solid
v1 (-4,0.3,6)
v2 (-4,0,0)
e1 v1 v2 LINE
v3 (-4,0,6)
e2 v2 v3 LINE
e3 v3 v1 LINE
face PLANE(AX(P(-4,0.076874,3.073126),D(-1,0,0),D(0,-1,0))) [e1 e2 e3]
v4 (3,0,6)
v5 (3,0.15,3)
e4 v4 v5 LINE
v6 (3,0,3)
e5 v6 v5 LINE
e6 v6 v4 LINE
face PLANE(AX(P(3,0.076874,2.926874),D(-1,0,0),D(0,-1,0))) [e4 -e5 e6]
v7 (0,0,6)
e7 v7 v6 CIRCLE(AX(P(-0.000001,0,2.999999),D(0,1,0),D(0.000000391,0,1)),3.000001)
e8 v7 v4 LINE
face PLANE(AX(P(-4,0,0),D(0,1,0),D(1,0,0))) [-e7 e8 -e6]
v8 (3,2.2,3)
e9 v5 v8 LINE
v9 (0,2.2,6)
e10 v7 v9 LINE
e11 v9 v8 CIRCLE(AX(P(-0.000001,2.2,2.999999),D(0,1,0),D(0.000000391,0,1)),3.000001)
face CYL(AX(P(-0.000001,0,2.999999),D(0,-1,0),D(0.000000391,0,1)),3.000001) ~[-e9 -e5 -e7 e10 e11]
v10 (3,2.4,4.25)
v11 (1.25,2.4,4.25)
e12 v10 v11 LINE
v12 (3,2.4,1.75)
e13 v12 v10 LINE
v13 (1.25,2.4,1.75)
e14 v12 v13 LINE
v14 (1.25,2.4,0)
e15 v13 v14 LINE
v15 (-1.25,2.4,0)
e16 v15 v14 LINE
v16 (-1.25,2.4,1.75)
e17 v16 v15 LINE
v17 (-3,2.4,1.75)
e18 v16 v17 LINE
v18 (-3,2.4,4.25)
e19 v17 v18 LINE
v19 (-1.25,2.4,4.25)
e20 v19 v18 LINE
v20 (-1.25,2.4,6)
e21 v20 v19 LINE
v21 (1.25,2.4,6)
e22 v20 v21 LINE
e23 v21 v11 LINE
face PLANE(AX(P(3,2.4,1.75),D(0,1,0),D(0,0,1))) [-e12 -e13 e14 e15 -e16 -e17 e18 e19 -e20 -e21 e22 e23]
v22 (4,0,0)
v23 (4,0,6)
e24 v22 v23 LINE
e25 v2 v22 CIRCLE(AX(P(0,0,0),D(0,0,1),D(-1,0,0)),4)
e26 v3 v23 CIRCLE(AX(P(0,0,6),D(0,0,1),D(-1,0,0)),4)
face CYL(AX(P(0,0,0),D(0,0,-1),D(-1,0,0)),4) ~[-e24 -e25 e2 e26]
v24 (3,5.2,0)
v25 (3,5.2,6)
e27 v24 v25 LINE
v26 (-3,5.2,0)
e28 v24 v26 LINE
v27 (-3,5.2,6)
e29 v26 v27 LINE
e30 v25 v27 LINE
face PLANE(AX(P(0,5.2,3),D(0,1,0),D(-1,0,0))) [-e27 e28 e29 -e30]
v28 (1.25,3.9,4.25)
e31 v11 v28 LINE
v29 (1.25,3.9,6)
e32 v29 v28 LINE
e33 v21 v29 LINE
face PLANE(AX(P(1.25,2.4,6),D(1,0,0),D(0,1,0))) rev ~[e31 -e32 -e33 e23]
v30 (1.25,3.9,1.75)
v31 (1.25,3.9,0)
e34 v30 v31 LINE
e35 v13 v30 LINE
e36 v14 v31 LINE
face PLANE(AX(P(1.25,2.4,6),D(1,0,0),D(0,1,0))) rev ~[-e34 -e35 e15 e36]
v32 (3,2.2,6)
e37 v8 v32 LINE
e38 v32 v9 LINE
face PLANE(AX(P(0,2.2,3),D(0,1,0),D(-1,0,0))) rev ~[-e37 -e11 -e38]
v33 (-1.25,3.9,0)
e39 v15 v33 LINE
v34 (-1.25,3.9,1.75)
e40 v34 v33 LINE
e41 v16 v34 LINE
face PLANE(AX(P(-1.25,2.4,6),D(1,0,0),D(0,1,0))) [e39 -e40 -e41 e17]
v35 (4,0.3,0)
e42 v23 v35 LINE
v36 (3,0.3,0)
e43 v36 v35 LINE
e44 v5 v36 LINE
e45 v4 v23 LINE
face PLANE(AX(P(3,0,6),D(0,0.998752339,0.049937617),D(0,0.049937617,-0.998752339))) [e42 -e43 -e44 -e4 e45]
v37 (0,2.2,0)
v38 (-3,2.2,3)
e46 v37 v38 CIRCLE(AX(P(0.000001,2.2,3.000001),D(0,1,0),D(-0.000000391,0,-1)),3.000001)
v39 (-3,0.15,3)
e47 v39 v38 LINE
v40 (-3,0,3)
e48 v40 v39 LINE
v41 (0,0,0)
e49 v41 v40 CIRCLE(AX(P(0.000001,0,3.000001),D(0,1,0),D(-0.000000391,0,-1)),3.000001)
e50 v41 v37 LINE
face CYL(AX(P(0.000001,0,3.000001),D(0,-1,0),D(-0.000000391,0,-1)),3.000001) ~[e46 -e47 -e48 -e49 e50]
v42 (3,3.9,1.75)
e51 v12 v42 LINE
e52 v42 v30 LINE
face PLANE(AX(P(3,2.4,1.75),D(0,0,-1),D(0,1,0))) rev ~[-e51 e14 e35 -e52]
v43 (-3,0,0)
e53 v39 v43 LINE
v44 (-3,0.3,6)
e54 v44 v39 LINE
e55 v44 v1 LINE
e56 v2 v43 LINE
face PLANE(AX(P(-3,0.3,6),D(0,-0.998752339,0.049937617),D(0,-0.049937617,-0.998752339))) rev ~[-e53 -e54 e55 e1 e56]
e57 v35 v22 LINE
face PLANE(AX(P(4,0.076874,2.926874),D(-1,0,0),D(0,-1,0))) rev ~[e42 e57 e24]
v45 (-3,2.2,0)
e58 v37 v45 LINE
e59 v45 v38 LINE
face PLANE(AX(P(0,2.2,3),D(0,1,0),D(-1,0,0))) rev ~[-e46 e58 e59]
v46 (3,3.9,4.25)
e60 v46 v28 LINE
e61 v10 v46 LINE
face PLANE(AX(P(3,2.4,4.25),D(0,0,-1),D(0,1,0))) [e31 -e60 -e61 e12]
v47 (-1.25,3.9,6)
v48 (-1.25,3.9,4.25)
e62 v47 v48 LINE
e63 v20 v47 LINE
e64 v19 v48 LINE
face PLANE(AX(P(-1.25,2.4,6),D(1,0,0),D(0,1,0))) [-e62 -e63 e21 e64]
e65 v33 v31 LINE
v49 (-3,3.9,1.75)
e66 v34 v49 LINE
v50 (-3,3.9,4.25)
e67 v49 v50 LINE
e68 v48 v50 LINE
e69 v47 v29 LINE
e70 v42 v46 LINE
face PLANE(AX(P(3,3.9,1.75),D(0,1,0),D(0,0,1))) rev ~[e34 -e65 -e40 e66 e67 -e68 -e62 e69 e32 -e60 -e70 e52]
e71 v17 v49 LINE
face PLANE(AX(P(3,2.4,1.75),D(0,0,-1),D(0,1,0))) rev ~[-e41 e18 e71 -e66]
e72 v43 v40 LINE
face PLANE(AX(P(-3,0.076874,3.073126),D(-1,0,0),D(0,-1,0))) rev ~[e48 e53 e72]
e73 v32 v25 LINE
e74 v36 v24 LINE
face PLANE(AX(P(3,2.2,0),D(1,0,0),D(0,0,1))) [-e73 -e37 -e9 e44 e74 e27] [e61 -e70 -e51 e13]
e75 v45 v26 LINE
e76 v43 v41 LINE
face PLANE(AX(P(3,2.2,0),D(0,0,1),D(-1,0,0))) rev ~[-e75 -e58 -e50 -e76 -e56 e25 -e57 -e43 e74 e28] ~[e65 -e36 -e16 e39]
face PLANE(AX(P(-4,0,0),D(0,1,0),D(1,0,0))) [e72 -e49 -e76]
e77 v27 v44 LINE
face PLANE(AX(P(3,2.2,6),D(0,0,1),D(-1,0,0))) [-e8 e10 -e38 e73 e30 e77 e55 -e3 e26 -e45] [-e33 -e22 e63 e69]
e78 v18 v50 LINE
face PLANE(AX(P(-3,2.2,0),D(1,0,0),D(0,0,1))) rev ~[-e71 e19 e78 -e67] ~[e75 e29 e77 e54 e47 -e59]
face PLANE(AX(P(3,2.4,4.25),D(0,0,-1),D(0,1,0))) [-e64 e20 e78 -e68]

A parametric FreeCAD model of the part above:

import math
import FreeCAD as App
import Part
import Sketcher

V = App.Vector
Q = App.Units.Quantity


def add_polygon(sketch, points):
    """Adds a closed chain of lines whose ends are joined by coincident constraints."""
    first, n = sketch.GeometryCount, len(points)
    for a, b in zip(points, points[1:] + points[:1]):
        sketch.addGeometry(Part.LineSegment(App.Vector(*a, 0), App.Vector(*b, 0)), False)
    for i in range(n):
        sketch.addConstraint(Sketcher.Constraint("Coincident", first + i, 2, first + (i + 1) % n, 1))

doc = App.newDocument("Part")
params = doc.addObject("Spreadsheet::Sheet", "Params")
for row, (alias, value) in enumerate([
    ("sketch1_radius", "4 mm"),
    ("pad1_length", "6 mm"),
    ("sketch2_radius", "3.000001 mm"),
    ("pad2_length", "2.2 mm"),
    ("sketch3_height", "6 mm"),
    ("sketch3_width", "0.3 mm"),
    ("pad3_length", "1 mm"),
    ("sketch4_height", "6 mm"),
    ("sketch4_width", "0.3 mm"),
    ("pad4_length", "1 mm"),
    ("sketch5_width", "6 mm"),
    ("pad5_length", "3 mm"),
    ("sketch6_width", "2.5 mm"),
    ("sketch6_height", "1.5 mm"),
    ("sketch7_width", "1.5 mm"),
    ("sketch7_height", "2.5 mm"),
], start=1):
    params.set(f"A{row}", alias)
    params.set(f"B{row}", "=" + value)
    params.setAlias(f"B{row}", alias)

body = doc.addObject("PartDesign::Body", "Body")

# Sketch on XY plane
sketch1 = body.newObject("Sketcher::SketchObject", "Sketch")
sketch1.AttachmentSupport = (doc.getObject("XY_Plane"), [""])
sketch1.MapMode = "FlatFace"
sketch1.addGeometry([
    Part.LineSegment(V(4, 0, 0), V(-4, 0, 0)),
    Part.ArcOfCircle(Part.Circle(V(0, 0, 0), V(0, 0, 1), 4), math.radians(180), math.radians(360)),
], False)
sketch1.addConstraint([
    Sketcher.Constraint("Coincident", 0, 1, 1, 2),
    Sketcher.Constraint("Coincident", 1, 1, 0, 2),
    Sketcher.Constraint("Horizontal", 0),
    Sketcher.Constraint("Coincident", 1, 3, -1, 1),
    Sketcher.Constraint("PointOnObject", 0, 1, -1),
    Sketcher.Constraint("Radius", 1, Q("4 mm")),
])
sketch1.setExpression("Constraints[5]", "Params.sketch1_radius")
pad1 = body.newObject("PartDesign::Pad", "Pad")
pad1.Profile = sketch1
pad1.setExpression("Length", "Params.pad1_length")

# Sketch on XZ plane
sketch2 = body.newObject("Sketcher::SketchObject", "Sketch001")
sketch2.AttachmentSupport = (doc.getObject("XZ_Plane"), [""])
sketch2.MapMode = "FlatFace"
sketch2.addGeometry([
    Part.LineSegment(V(3, 3, 0), V(3, 0, 0)),  # 0
    Part.LineSegment(V(3, 0, 0), V(0, 0, 0)),  # 1
    Part.ArcOfCircle(Part.Circle(V(0.000001, 3.000001, 0), V(0, 0, 1), 3.000001), math.radians(-179.999978), math.radians(-90.000022)),  # 2
    Part.LineSegment(V(-3, 3, 0), V(-3, 6, 0)),  # 3
    Part.LineSegment(V(-3, 6, 0), V(0, 6, 0)),  # 4
    Part.ArcOfCircle(Part.Circle(V(-0.000001, 2.999999, 0), V(0, 0, 1), 3.000001), math.radians(0.000022), math.radians(89.999978)),  # 5
], False)
sketch2.addConstraint([
    Sketcher.Constraint("Coincident", 0, 2, 1, 1),
    Sketcher.Constraint("Tangent", 1, 2, 2, 2),
    Sketcher.Constraint("Tangent", 2, 1, 3, 1),
    Sketcher.Constraint("Coincident", 3, 2, 4, 1),
    Sketcher.Constraint("Tangent", 4, 2, 5, 2),
    Sketcher.Constraint("Tangent", 5, 1, 0, 1),
    Sketcher.Constraint("Vertical", 0),
    Sketcher.Constraint("Horizontal", 1),
    Sketcher.Constraint("Vertical", 3),
    Sketcher.Constraint("Horizontal", 4),
    Sketcher.Constraint("Coincident", 1, 2, -1, 1),
    Sketcher.Constraint("Coincident", 5, 3, 2, 3),
    Sketcher.Constraint("Equal", 2, 5),
    Sketcher.Constraint("Radius", 2, Q("3.000001 mm")),
])
sketch2.setExpression("Constraints[13]", "Params.sketch2_radius")
pad2 = body.newObject("PartDesign::Pad", "Pad001")
pad2.Profile = sketch2
pad2.setExpression("Length", "Params.pad2_length")
pad2.Reversed = True

# Sketch on YZ plane
sketch3 = body.newObject("Sketcher::SketchObject", "Sketch002")
sketch3.AttachmentSupport = (doc.getObject("YZ_Plane"), [""])
sketch3.MapMode = "FlatFace"
sketch3.AttachmentOffset = App.Placement(V(0, 0, 3), App.Rotation())
add_polygon(sketch3, [(0, 6), (0, 0), (0.3, 0)])  # lines 0-2
sketch3.addConstraint([
    Sketcher.Constraint("Vertical", 0),
    Sketcher.Constraint("Horizontal", 1),
    Sketcher.Constraint("Coincident", 0, 2, -1, 1),
    Sketcher.Constraint("DistanceY", 0, 2, 0, 1, Q("6 mm")),
    Sketcher.Constraint("DistanceX", 1, 1, 1, 2, Q("0.3 mm")),
])
sketch3.setExpression("Constraints[6]", "Params.sketch3_height")
sketch3.setExpression("Constraints[7]", "Params.sketch3_width")
pad3 = body.newObject("PartDesign::Pad", "Pad002")
pad3.Profile = sketch3
pad3.setExpression("Length", "Params.pad3_length")

# Sketch on YZ plane
sketch4 = body.newObject("Sketcher::SketchObject", "Sketch003")
sketch4.AttachmentSupport = (doc.getObject("YZ_Plane"), [""])
sketch4.MapMode = "FlatFace"
sketch4.AttachmentOffset = App.Placement(V(0, 0, -3), App.Rotation())
add_polygon(sketch4, [(0, 0), (0, 6), (0.3, 6)])  # lines 0-2
sketch4.addConstraint([
    Sketcher.Constraint("Vertical", 0),
    Sketcher.Constraint("Horizontal", 1),
    Sketcher.Constraint("Coincident", 2, 2, -1, 1),
    Sketcher.Constraint("DistanceY", 0, 1, 0, 2, Q("6 mm")),
    Sketcher.Constraint("DistanceX", 1, 1, 1, 2, Q("0.3 mm")),
])
sketch4.setExpression("Constraints[6]", "Params.sketch4_height")
sketch4.setExpression("Constraints[7]", "Params.sketch4_width")
pad4 = body.newObject("PartDesign::Pad", "Pad003")
pad4.Profile = sketch4
pad4.setExpression("Length", "Params.pad4_length")
pad4.Reversed = True

# Sketch on XZ plane
sketch5 = body.newObject("Sketcher::SketchObject", "Sketch004")
sketch5.AttachmentSupport = (doc.getObject("XZ_Plane"), [""])
sketch5.MapMode = "FlatFace"
sketch5.AttachmentOffset = App.Placement(V(0, 0, -2.2), App.Rotation())
add_polygon(sketch5, [(3, 6), (3, 0), (-3, 0), (-3, 6)])  # lines 0-3
sketch5.addConstraint([
    Sketcher.Constraint("Vertical", 0),
    Sketcher.Constraint("Horizontal", 1),
    Sketcher.Constraint("Vertical", 2),
    Sketcher.Constraint("Horizontal", 3),
    Sketcher.Constraint("Symmetric", 0, 2, 1, 2, -1, 1),
    Sketcher.Constraint("Equal", 3, 0),
    Sketcher.Constraint("DistanceX", 1, 2, 1, 1, Q("6 mm")),
])
sketch5.setExpression("Constraints[10]", "Params.sketch5_width")
pad5 = body.newObject("PartDesign::Pad", "Pad004")
pad5.Profile = sketch5
pad5.setExpression("Length", "Params.pad5_length")
pad5.Reversed = True

# Sketch on XY plane
sketch6 = body.newObject("Sketcher::SketchObject", "Sketch005")
sketch6.AttachmentSupport = (doc.getObject("XY_Plane"), [""])
sketch6.MapMode = "FlatFace"
sketch6.AttachmentOffset = App.Placement(V(0, 0, 6), App.Rotation())
add_polygon(sketch6, [(-1.25, 3.9), (-1.25, 2.4), (1.25, 2.4), (1.25, 3.9)])  # lines 0-3
sketch6.addConstraint([
    Sketcher.Constraint("Vertical", 0),
    Sketcher.Constraint("Horizontal", 1),
    Sketcher.Constraint("Vertical", 2),
    Sketcher.Constraint("Horizontal", 3),
    Sketcher.Constraint("DistanceX", 1, 1, 1, 2, Q("2.5 mm")),
    Sketcher.Constraint("DistanceY", 0, 2, 0, 1, Q("1.5 mm")),
    Sketcher.Constraint("DistanceY", -1, 1, 0, 2, Q("2.4 mm")),
    Sketcher.Constraint("DistanceX", 0, 2, -1, 1, Q("1.25 mm")),
])
sketch6.setExpression("Constraints[8]", "Params.sketch6_width")
sketch6.setExpression("Constraints[9]", "Params.sketch6_height")
pocket1 = body.newObject("PartDesign::Pocket", "Pocket")
pocket1.Profile = sketch6
pocket1.Type = "ThroughAll"

# Sketch on YZ plane
sketch7 = body.newObject("Sketcher::SketchObject", "Sketch006")
sketch7.AttachmentSupport = (doc.getObject("YZ_Plane"), [""])
sketch7.MapMode = "FlatFace"
sketch7.AttachmentOffset = App.Placement(V(0, 0, 3), App.Rotation())
add_polygon(sketch7, [(2.4, 4.25), (2.4, 1.75), (3.9, 1.75), (3.9, 4.25)])  # lines 0-3
sketch7.addConstraint([
    Sketcher.Constraint("Vertical", 0),
    Sketcher.Constraint("Horizontal", 1),
    Sketcher.Constraint("Vertical", 2),
    Sketcher.Constraint("Horizontal", 3),
    Sketcher.Constraint("DistanceX", 1, 1, 1, 2, Q("1.5 mm")),
    Sketcher.Constraint("DistanceY", 0, 2, 0, 1, Q("2.5 mm")),
    Sketcher.Constraint("DistanceX", -1, 1, 0, 2, Q("2.4 mm")),
    Sketcher.Constraint("DistanceY", -1, 1, 0, 2, Q("1.75 mm")),
])
sketch7.setExpression("Constraints[8]", "Params.sketch7_width")
sketch7.setExpression("Constraints[9]", "Params.sketch7_height")
pocket2 = body.newObject("PartDesign::Pocket", "Pocket001")
pocket2.Profile = sketch7
pocket2.Type = "ThroughAll"

doc.recompute()
